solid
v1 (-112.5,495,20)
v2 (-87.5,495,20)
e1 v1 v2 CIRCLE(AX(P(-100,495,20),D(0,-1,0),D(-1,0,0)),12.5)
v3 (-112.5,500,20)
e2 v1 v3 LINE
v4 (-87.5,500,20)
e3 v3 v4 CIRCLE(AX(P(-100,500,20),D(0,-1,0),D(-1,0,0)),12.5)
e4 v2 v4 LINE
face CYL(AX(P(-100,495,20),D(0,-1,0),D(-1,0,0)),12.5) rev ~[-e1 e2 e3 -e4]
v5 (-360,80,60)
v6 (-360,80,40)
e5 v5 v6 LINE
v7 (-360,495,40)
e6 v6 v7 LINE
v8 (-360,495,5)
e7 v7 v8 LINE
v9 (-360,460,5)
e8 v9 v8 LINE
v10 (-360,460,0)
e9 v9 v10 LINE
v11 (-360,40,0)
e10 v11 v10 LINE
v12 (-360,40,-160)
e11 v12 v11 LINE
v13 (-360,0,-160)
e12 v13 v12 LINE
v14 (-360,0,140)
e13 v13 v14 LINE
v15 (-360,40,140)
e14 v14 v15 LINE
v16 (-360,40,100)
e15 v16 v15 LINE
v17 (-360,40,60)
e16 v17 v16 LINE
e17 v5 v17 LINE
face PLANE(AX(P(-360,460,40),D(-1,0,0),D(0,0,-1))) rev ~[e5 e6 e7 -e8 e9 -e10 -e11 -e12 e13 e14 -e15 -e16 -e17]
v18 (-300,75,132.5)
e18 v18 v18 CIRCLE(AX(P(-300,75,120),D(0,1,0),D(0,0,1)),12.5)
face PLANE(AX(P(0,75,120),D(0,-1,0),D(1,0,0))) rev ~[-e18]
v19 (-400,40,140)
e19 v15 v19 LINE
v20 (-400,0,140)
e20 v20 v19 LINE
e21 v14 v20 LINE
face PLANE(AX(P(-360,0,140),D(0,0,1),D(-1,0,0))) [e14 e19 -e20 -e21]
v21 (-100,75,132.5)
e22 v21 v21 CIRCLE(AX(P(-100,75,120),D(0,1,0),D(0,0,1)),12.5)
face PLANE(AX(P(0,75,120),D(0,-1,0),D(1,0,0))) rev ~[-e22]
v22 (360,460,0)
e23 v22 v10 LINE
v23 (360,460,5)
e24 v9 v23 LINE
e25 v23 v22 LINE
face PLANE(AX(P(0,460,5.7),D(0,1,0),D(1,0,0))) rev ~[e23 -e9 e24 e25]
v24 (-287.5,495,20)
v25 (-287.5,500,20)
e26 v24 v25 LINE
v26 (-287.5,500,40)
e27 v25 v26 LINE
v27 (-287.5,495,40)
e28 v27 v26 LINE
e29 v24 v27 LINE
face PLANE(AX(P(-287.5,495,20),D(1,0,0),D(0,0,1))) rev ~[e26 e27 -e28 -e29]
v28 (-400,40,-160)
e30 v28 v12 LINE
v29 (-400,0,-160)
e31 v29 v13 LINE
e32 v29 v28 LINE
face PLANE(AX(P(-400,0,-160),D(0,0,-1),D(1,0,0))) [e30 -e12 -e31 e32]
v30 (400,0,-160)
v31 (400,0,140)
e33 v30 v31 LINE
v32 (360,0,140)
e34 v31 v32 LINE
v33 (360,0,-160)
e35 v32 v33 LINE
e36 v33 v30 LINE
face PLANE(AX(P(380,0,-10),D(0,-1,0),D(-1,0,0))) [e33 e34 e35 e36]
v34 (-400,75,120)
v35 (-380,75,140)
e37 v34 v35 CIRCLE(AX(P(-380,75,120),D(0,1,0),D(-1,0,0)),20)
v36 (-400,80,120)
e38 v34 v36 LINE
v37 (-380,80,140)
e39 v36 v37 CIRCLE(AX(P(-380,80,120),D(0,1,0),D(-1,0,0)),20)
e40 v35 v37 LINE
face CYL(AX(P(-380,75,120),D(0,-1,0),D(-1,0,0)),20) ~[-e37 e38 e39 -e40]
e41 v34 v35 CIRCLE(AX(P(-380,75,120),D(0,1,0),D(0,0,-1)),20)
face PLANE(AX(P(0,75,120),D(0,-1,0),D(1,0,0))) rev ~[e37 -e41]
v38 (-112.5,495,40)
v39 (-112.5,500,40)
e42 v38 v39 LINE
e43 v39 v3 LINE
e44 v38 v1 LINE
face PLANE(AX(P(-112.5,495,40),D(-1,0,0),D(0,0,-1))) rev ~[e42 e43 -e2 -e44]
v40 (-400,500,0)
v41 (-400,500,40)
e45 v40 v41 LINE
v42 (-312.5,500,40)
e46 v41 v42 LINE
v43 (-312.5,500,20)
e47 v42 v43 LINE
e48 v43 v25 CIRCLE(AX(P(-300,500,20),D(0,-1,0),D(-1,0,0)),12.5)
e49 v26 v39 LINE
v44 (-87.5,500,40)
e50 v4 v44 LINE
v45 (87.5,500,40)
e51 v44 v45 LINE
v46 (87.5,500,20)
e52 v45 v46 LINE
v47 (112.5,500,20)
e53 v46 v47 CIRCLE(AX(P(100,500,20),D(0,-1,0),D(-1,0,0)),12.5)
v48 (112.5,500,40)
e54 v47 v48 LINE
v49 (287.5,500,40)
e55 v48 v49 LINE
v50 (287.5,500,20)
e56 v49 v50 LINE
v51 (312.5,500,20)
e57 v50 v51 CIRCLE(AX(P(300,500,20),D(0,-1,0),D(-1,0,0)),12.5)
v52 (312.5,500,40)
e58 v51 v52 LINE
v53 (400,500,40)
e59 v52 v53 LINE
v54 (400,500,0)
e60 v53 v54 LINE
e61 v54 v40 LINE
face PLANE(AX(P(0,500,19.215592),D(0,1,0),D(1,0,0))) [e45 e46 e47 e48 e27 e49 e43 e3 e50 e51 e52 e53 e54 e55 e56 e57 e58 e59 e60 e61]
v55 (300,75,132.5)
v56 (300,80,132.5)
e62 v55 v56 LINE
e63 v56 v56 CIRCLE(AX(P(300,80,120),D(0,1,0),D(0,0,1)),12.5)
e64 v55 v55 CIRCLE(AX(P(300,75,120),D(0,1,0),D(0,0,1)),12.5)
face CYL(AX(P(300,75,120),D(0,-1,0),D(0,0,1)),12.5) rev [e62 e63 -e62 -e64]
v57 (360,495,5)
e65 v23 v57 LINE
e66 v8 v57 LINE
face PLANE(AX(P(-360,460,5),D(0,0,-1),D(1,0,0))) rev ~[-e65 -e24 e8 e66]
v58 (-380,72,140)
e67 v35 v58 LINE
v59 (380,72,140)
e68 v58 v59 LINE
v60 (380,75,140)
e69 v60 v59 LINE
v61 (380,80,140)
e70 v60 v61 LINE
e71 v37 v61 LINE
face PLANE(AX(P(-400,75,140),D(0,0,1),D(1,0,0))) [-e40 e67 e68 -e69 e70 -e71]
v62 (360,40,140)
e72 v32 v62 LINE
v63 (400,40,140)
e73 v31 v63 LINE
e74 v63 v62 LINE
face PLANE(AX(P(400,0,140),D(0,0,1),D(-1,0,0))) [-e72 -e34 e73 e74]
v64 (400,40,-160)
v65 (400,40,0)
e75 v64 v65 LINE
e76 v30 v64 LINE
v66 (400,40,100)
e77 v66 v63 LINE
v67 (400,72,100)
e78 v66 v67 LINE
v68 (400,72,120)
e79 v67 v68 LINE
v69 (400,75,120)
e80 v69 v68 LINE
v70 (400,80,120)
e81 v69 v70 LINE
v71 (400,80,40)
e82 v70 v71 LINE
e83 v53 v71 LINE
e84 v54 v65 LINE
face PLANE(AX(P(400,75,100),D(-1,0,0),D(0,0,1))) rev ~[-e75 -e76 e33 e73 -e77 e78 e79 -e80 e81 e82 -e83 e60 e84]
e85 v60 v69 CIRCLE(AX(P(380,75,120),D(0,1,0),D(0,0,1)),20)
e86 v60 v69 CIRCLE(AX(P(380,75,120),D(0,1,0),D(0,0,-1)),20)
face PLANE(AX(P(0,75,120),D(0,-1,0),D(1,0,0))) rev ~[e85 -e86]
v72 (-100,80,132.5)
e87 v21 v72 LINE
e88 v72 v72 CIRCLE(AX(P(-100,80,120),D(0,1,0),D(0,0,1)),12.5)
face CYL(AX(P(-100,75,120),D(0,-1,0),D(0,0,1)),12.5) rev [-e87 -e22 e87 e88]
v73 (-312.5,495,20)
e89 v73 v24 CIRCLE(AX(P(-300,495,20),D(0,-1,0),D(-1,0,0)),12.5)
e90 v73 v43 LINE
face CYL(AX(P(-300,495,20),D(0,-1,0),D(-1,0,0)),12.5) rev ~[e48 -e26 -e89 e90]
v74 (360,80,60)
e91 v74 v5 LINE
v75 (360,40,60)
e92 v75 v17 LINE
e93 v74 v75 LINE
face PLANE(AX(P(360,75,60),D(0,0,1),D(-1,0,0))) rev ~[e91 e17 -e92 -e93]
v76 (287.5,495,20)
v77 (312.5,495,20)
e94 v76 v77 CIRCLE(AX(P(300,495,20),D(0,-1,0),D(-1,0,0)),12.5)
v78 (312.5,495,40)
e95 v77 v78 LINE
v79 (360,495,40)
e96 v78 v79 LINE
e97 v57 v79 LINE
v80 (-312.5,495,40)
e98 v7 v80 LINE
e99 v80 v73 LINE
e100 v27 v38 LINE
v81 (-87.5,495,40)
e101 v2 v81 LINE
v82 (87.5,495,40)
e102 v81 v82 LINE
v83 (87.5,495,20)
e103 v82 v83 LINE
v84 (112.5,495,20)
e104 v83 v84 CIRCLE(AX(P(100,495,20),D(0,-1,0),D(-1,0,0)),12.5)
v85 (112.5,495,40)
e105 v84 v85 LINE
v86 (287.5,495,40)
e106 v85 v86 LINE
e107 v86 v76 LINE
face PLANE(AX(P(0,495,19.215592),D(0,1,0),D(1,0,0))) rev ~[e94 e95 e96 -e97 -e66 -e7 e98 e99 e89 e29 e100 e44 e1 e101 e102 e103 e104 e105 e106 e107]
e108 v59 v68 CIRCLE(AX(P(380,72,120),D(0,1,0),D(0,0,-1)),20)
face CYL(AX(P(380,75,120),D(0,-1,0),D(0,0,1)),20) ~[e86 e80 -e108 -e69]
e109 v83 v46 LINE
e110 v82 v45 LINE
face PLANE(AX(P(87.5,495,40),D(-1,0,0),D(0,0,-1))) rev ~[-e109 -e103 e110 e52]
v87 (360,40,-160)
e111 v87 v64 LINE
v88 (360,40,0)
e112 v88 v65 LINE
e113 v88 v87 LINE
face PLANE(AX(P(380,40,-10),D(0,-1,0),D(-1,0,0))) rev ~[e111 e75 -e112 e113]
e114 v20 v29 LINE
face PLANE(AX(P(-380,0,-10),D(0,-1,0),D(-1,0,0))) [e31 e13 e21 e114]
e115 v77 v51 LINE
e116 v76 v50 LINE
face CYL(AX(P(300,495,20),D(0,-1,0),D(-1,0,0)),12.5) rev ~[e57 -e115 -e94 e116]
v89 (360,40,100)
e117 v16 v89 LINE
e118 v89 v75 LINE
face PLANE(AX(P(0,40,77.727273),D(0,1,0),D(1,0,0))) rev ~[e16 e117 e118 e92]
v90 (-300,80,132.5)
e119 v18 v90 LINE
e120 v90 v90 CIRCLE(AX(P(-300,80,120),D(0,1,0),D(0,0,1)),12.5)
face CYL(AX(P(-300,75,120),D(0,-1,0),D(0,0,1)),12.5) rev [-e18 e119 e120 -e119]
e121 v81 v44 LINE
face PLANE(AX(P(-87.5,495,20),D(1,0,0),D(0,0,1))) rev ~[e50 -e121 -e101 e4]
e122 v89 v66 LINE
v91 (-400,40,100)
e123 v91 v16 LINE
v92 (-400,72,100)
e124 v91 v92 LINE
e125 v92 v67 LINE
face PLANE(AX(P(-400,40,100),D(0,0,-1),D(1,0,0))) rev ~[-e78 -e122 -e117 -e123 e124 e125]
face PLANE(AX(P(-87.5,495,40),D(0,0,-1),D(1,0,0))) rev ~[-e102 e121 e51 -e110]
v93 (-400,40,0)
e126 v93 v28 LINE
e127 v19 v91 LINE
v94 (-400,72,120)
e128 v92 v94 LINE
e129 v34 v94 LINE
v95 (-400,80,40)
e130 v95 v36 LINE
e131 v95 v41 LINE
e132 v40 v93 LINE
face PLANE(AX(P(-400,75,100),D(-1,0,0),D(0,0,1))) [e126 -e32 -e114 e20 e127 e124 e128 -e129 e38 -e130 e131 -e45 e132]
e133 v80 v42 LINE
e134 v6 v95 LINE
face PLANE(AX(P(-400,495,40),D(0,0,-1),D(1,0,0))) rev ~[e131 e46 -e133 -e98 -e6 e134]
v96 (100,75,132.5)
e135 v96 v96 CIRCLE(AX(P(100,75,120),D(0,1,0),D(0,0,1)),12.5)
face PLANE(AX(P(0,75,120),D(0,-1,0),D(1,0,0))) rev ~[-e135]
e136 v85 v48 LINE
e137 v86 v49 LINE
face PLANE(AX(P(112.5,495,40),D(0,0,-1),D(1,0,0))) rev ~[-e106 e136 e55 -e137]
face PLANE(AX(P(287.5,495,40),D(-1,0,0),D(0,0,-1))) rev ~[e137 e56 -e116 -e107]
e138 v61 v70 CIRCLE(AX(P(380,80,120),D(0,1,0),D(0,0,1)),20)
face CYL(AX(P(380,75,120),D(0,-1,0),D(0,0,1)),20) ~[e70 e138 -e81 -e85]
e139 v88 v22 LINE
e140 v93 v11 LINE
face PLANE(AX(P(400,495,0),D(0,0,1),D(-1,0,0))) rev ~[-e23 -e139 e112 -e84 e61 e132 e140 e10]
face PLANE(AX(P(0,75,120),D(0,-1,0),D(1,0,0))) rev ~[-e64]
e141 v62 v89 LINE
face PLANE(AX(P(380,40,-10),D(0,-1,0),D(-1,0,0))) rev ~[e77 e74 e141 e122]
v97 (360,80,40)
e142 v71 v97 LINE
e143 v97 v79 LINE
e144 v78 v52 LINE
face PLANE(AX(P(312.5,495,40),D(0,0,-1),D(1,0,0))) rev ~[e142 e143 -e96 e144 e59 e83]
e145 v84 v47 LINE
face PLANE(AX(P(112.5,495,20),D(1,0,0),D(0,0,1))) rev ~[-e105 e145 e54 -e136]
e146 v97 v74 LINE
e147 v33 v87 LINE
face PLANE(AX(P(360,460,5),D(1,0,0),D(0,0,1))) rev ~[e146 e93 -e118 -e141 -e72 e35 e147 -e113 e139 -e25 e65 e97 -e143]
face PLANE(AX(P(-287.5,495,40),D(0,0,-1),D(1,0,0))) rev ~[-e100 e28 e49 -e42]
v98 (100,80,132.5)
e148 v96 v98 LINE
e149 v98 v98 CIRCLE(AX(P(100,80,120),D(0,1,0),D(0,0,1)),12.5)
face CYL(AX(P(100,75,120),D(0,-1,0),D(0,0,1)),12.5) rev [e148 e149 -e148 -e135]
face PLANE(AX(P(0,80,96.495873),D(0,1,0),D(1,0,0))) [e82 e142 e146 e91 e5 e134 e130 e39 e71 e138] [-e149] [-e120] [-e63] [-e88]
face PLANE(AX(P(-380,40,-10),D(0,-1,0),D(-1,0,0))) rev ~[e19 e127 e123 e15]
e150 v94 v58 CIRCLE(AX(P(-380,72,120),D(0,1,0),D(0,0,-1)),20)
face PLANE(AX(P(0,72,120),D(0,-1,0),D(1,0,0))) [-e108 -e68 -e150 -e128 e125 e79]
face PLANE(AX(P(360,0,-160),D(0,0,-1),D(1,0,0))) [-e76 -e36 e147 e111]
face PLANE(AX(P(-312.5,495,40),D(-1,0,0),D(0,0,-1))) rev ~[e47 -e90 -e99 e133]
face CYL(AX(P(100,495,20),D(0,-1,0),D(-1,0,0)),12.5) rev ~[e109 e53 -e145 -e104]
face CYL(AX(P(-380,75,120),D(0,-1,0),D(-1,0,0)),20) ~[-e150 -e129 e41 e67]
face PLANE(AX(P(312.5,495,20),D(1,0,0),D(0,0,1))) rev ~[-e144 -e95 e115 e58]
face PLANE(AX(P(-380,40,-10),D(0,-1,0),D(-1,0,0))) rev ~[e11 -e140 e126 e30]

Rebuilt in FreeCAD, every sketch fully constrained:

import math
import FreeCAD as App
import Part
import Sketcher

V = App.Vector
Q = App.Units.Quantity


def edges_at(feature, points):
    """Names of the edges that pass closest to the given points."""
    edges = feature.Shape.Edges
    near = lambda p: min(range(len(edges)), key=lambda i: edges[i].distToShape(Part.Vertex(*p))[0])
    return sorted({f"Edge{near(p) + 1}" for p in points})

doc = App.newDocument("Part")
params = doc.addObject("Spreadsheet::Sheet", "Params")
for row, (alias, value) in enumerate([
    ("sketch1_width", "40 mm"),
    ("sketch1_height", "300 mm"),
    ("pad1_length", "40 mm"),
    ("sketch2_width", "40 mm"),
    ("sketch2_height", "300 mm"),
    ("pad2_length", "40 mm"),
    ("sketch3_width", "800 mm"),
    ("sketch3_width2", "40 mm"),
    ("sketch3_height", "60 mm"),
    ("sketch3_height2", "20 mm"),
    ("pad3_length", "35 mm"),
    ("sketch4_diameter", "25 mm"),
    ("sketch4_radius", "20 mm"),
    ("sketch4_width", "760 mm"),
    ("sketch4_width2", "40 mm"),
    ("sketch4_height", "80 mm"),
    ("pad4_length", "5 mm"),
    ("sketch5_width", "40 mm"),
    ("pad5_length", "420 mm"),
    ("sketch6_width", "40 mm"),
    ("sketch6_width2", "720 mm"),
    ("sketch6_height", "35 mm"),
    ("pad6_length", "35 mm"),
    ("sketch7_radius", "12.5 mm"),
    ("sketch7_width", "175 mm"),
    ("sketch7_width2", "800 mm"),
    ("sketch7_height", "40 mm"),
    ("sketch7_height2", "20 mm"),
    ("pad7_length", "5 mm"),
    ("sketch8_width", "800 mm"),
    ("sketch8_height", "40 mm"),
    ("pad8_length", "3 mm"),
    ("fillet_radius", "20 mm"),
], start=1):
    params.set(f"A{row}", alias)
    params.set(f"B{row}", "=" + value)
    params.setAlias(f"B{row}", alias)

body = doc.addObject("PartDesign::Body", "Body")

sketch1 = body.newObject("Sketcher::SketchObject", "Sketch")
sketch1.AttachmentSupport = (doc.getObject("XZ_Plane"), [""])
sketch1.MapMode = "FlatFace"
sketch1.addGeometry(Part.LineSegment(V(-360, -160, 0), V(-400, -160, 0)), False)
sketch1.addGeometry(Part.LineSegment(V(-400, -160, 0), V(-400, 140, 0)), False)
sketch1.addGeometry(Part.LineSegment(V(-400, 140, 0), V(-360, 140, 0)), False)
sketch1.addGeometry(Part.LineSegment(V(-360, 140, 0), V(-360, -160, 0)), False)
sketch1.addConstraint(Sketcher.Constraint("Coincident", 0, 2, 1, 1))
sketch1.addConstraint(Sketcher.Constraint("Coincident", 1, 2, 2, 1))
sketch1.addConstraint(Sketcher.Constraint("Coincident", 2, 2, 3, 1))
sketch1.addConstraint(Sketcher.Constraint("Coincident", 3, 2, 0, 1))
sketch1.addConstraint(Sketcher.Constraint("Horizontal", 0))
sketch1.addConstraint(Sketcher.Constraint("Vertical", 1))
sketch1.addConstraint(Sketcher.Constraint("Horizontal", 2))
sketch1.addConstraint(Sketcher.Constraint("Vertical", 3))
sketch1.addConstraint(Sketcher.Constraint("DistanceX", 0, 2, 0, 1, Q("40 mm")))
sketch1.addConstraint(Sketcher.Constraint("DistanceY", 1, 1, 1, 2, Q("300 mm")))
sketch1.addConstraint(Sketcher.Constraint("DistanceX", 0, 2, -1, 1, Q("400 mm")))
sketch1.addConstraint(Sketcher.Constraint("DistanceY", 0, 2, -1, 1, Q("160 mm")))
sketch1.setExpression("Constraints[8]", "Params.sketch1_width")
sketch1.setExpression("Constraints[9]", "Params.sketch1_height")
pad1 = body.newObject("PartDesign::Pad", "Pad")
pad1.Profile = sketch1
pad1.setExpression("Length", "Params.pad1_length")
pad1.Reversed = True
body2 = doc.addObject("PartDesign::Body", "Body001")

sketch2 = body2.newObject("Sketcher::SketchObject", "Sketch001")
sketch2.AttachmentSupport = (doc.getObject("XZ_Plane001"), [""])
sketch2.MapMode = "FlatFace"
sketch2.addGeometry(Part.LineSegment(V(400, -160, 0), V(360, -160, 0)), False)
sketch2.addGeometry(Part.LineSegment(V(360, -160, 0), V(360, 140, 0)), False)
sketch2.addGeometry(Part.LineSegment(V(360, 140, 0), V(400, 140, 0)), False)
sketch2.addGeometry(Part.LineSegment(V(400, 140, 0), V(400, -160, 0)), False)
sketch2.addConstraint(Sketcher.Constraint("Coincident", 0, 2, 1, 1))
sketch2.addConstraint(Sketcher.Constraint("Coincident", 1, 2, 2, 1))
sketch2.addConstraint(Sketcher.Constraint("Coincident", 2, 2, 3, 1))
sketch2.addConstraint(Sketcher.Constraint("Coincident", 3, 2, 0, 1))
sketch2.addConstraint(Sketcher.Constraint("Horizontal", 0))
sketch2.addConstraint(Sketcher.Constraint("Vertical", 1))
sketch2.addConstraint(Sketcher.Constraint("Horizontal", 2))
sketch2.addConstraint(Sketcher.Constraint("Vertical", 3))
sketch2.addConstraint(Sketcher.Constraint("DistanceX", 0, 2, 0, 1, Q("40 mm")))
sketch2.addConstraint(Sketcher.Constraint("DistanceY", 1, 1, 1, 2, Q("300 mm")))
sketch2.addConstraint(Sketcher.Constraint("DistanceX", -1, 1, 0, 2, Q("360 mm")))
sketch2.addConstraint(Sketcher.Constraint("DistanceY", 0, 2, -1, 1, Q("160 mm")))
sketch2.setExpression("Constraints[8]", "Params.sketch2_width")
sketch2.setExpression("Constraints[9]", "Params.sketch2_height")
pad2 = body2.newObject("PartDesign::Pad", "Pad001")
pad2.Profile = sketch2
pad2.setExpression("Length", "Params.pad2_length")
pad2.Reversed = True
body.AllowCompound = True
doc.recompute()

boolean = body.newObject("PartDesign::Boolean", "Boolean")
boolean.Type = "Fuse"
boolean.addObjects([body2])

sketch3 = body.newObject("Sketcher::SketchObject", "Sketch002")
sketch3.AttachmentSupport = (doc.getObject("XZ_Plane"), [""])
sketch3.MapMode = "FlatFace"
sketch3.AttachmentOffset = App.Placement(V(0, 0, -40), App.Rotation())
sketch3.addGeometry(Part.LineSegment(V(-400, 40, 0), V(-400, 100, 0)), False)
sketch3.addGeometry(Part.LineSegment(V(-400, 100, 0), V(400, 100, 0)), False)
sketch3.addGeometry(Part.LineSegment(V(400, 100, 0), V(400, 40, 0)), False)
sketch3.addGeometry(Part.LineSegment(V(400, 40, 0), V(360, 40, 0)), False)
sketch3.addGeometry(Part.LineSegment(V(360, 40, 0), V(360, 60, 0)), False)
sketch3.addGeometry(Part.LineSegment(V(360, 60, 0), V(-360, 60, 0)), False)
sketch3.addGeometry(Part.LineSegment(V(-360, 60, 0), V(-360, 40, 0)), False)
sketch3.addGeometry(Part.LineSegment(V(-360, 40, 0), V(-400, 40, 0)), False)
sketch3.addConstraint(Sketcher.Constraint("Coincident", 0, 2, 1, 1))
sketch3.addConstraint(Sketcher.Constraint("Coincident", 1, 2, 2, 1))
sketch3.addConstraint(Sketcher.Constraint("Coincident", 2, 2, 3, 1))
sketch3.addConstraint(Sketcher.Constraint("Coincident", 3, 2, 4, 1))
sketch3.addConstraint(Sketcher.Constraint("Coincident", 4, 2, 5, 1))
sketch3.addConstraint(Sketcher.Constraint("Coincident", 5, 2, 6, 1))
sketch3.addConstraint(Sketcher.Constraint("Coincident", 6, 2, 7, 1))
sketch3.addConstraint(Sketcher.Constraint("Coincident", 7, 2, 0, 1))
sketch3.addConstraint(Sketcher.Constraint("Vertical", 0))
sketch3.addConstraint(Sketcher.Constraint("Horizontal", 1))
sketch3.addConstraint(Sketcher.Constraint("Vertical", 2))
sketch3.addConstraint(Sketcher.Constraint("Horizontal", 3))
sketch3.addConstraint(Sketcher.Constraint("Vertical", 4))
sketch3.addConstraint(Sketcher.Constraint("Horizontal", 5))
sketch3.addConstraint(Sketcher.Constraint("Vertical", 6))
sketch3.addConstraint(Sketcher.Constraint("Horizontal", 7))
sketch3.addConstraint(Sketcher.Constraint("Symmetric", 3, 2, 6, 2, -2))
sketch3.addConstraint(Sketcher.Constraint("Equal", 3, 7))
sketch3.addConstraint(Sketcher.Constraint("DistanceX", 1, 1, 1, 2, Q("800 mm")))
sketch3.addConstraint(Sketcher.Constraint("DistanceX", 3, 2, 3, 1, Q("40 mm")))
sketch3.addConstraint(Sketcher.Constraint("DistanceY", 0, 1, 0, 2, Q("60 mm")))
sketch3.addConstraint(Sketcher.Constraint("DistanceY", 4, 1, 4, 2, Q("20 mm")))
sketch3.addConstraint(Sketcher.Constraint("DistanceY", -1, 1, 0, 2, Q("100 mm")))
sketch3.setExpression("Constraints[18]", "Params.sketch3_width")
sketch3.setExpression("Constraints[19]", "Params.sketch3_width2")
sketch3.setExpression("Constraints[20]", "Params.sketch3_height")
sketch3.setExpression("Constraints[21]", "Params.sketch3_height2")
pad3 = body.newObject("PartDesign::Pad", "Pad002")
pad3.Profile = sketch3
pad3.setExpression("Length", "Params.pad3_length")
pad3.Reversed = True

sketch4 = body.newObject("Sketcher::SketchObject", "Sketch003")
sketch4.AttachmentSupport = (doc.getObject("XZ_Plane"), [""])
sketch4.MapMode = "FlatFace"
sketch4.AttachmentOffset = App.Placement(V(0, 0, -75), App.Rotation())
sketch4.addGeometry(Part.LineSegment(V(-400, 40, 0), V(-400, 120, 0)), False)
sketch4.addGeometry(Part.ArcOfCircle(Part.Circle(V(-380, 120, 0), V(0, 0, 1), 20), math.radians(90), math.radians(180)), False)
sketch4.addGeometry(Part.LineSegment(V(-380, 140, 0), V(380, 140, 0)), False)
sketch4.addGeometry(Part.ArcOfCircle(Part.Circle(V(380, 120, 0), V(0, 0, 1), 20), math.radians(0), math.radians(90)), False)
sketch4.addGeometry(Part.LineSegment(V(400, 120, 0), V(400, 40, 0)), False)
sketch4.addGeometry(Part.LineSegment(V(400, 40, 0), V(360, 40, 0)), False)
sketch4.addGeometry(Part.LineSegment(V(360, 40, 0), V(360, 60, 0)), False)
sketch4.addGeometry(Part.LineSegment(V(360, 60, 0), V(-360, 60, 0)), False)
sketch4.addGeometry(Part.LineSegment(V(-360, 60, 0), V(-360, 40, 0)), False)
sketch4.addGeometry(Part.LineSegment(V(-360, 40, 0), V(-400, 40, 0)), False)
sketch4.addGeometry(Part.Circle(V(-300, 120, 0), V(0, 0, 1), 12.5), False)
sketch4.addGeometry(Part.Circle(V(-100, 120, 0), V(0, 0, 1), 12.5), False)
sketch4.addGeometry(Part.Circle(V(100, 120, 0), V(0, 0, 1), 12.5), False)
sketch4.addGeometry(Part.Circle(V(300, 120, 0), V(0, 0, 1), 12.5), False)
sketch4.addConstraint(Sketcher.Constraint("Tangent", 0, 2, 1, 2))
sketch4.addConstraint(Sketcher.Constraint("Tangent", 1, 1, 2, 1))
sketch4.addConstraint(Sketcher.Constraint("Tangent", 2, 2, 3, 2))
sketch4.addConstraint(Sketcher.Constraint("Tangent", 3, 1, 4, 1))
sketch4.addConstraint(Sketcher.Constraint("Coincident", 4, 2, 5, 1))
sketch4.addConstraint(Sketcher.Constraint("Coincident", 5, 2, 6, 1))
sketch4.addConstraint(Sketcher.Constraint("Coincident", 6, 2, 7, 1))
sketch4.addConstraint(Sketcher.Constraint("Coincident", 7, 2, 8, 1))
sketch4.addConstraint(Sketcher.Constraint("Coincident", 8, 2, 9, 1))
sketch4.addConstraint(Sketcher.Constraint("Coincident", 9, 2, 0, 1))
sketch4.addConstraint(Sketcher.Constraint("Vertical", 0))
sketch4.addConstraint(Sketcher.Constraint("Horizontal", 2))
sketch4.addConstraint(Sketcher.Constraint("Vertical", 4))
sketch4.addConstraint(Sketcher.Constraint("Horizontal", 5))
sketch4.addConstraint(Sketcher.Constraint("Vertical", 6))
sketch4.addConstraint(Sketcher.Constraint("Horizontal", 7))
sketch4.addConstraint(Sketcher.Constraint("Vertical", 8))
sketch4.addConstraint(Sketcher.Constraint("Horizontal", 9))
sketch4.addConstraint(Sketcher.Constraint("Equal", 1, 3))
sketch4.addConstraint(Sketcher.Constraint("Equal", 10, 11))
sketch4.addConstraint(Sketcher.Constraint("Equal", 11, 12))
sketch4.addConstraint(Sketcher.Constraint("Equal", 12, 13))
sketch4.addConstraint(Sketcher.Constraint("Symmetric", 11, 3, 12, 3, -2))
sketch4.addConstraint(Sketcher.Constraint("Symmetric", 10, 3, 13, 3, -2))
sketch4.addConstraint(Sketcher.Constraint("Symmetric", 5, 2, 8, 2, -2))
sketch4.addConstraint(Sketcher.Constraint("Horizontal", 3, 3, 10, 3))
sketch4.addConstraint(Sketcher.Constraint("Horizontal", 10, 3, 11, 3))
sketch4.addConstraint(Sketcher.Constraint("Equal", 5, 9))
sketch4.addConstraint(Sketcher.Constraint("Diameter", 10, Q("25 mm")))
sketch4.addConstraint(Sketcher.Constraint("Radius", 1, Q("20 mm")))
sketch4.addConstraint(Sketcher.Constraint("DistanceX", 2, 1, 2, 2, Q("760 mm")))
sketch4.addConstraint(Sketcher.Constraint("DistanceX", 5, 2, 5, 1, Q("40 mm")))
sketch4.addConstraint(Sketcher.Constraint("DistanceY", 0, 1, 0, 2, Q("80 mm")))
sketch4.addConstraint(Sketcher.Constraint("DistanceY", 6, 1, 6, 2, Q("20 mm")))
sketch4.addConstraint(Sketcher.Constraint("DistanceY", -1, 1, 1, 3, Q("120 mm")))
sketch4.addConstraint(Sketcher.Constraint("DistanceX", 10, 3, -1, 1, Q("300 mm")))
sketch4.addConstraint(Sketcher.Constraint("DistanceX", 11, 3, -1, 1, Q("100 mm")))
sketch4.setExpression("Constraints[28]", "Params.sketch4_diameter")
sketch4.setExpression("Constraints[29]", "Params.sketch4_radius")
sketch4.setExpression("Constraints[30]", "Params.sketch4_width")
sketch4.setExpression("Constraints[31]", "Params.sketch4_width2")
sketch4.setExpression("Constraints[32]", "Params.sketch4_height")
pad4 = body.newObject("PartDesign::Pad", "Pad003")
pad4.Profile = sketch4
pad4.setExpression("Length", "Params.pad4_length")
pad4.Reversed = True

sketch5 = body.newObject("Sketcher::SketchObject", "Sketch004")
sketch5.AttachmentSupport = (doc.getObject("XZ_Plane"), [""])
sketch5.MapMode = "FlatFace"
sketch5.AttachmentOffset = App.Placement(V(0, 0, -40), App.Rotation())
sketch5.addGeometry(Part.LineSegment(V(-400, 0, 0), V(-400, 40, 0)), False)
sketch5.addGeometry(Part.LineSegment(V(-400, 40, 0), V(-360, 40, 0)), False)
sketch5.addGeometry(Part.LineSegment(V(-360, 40, 0), V(-360, 0, 0)), False)
sketch5.addGeometry(Part.LineSegment(V(-360, 0, 0), V(-400, 0, 0)), False)
sketch5.addGeometry(Part.LineSegment(V(360, 0, 0), V(360, 40, 0)), False)
sketch5.addGeometry(Part.LineSegment(V(360, 40, 0), V(400, 40, 0)), False)
sketch5.addGeometry(Part.LineSegment(V(400, 40, 0), V(400, 0, 0)), False)
sketch5.addGeometry(Part.LineSegment(V(400, 0, 0), V(360, 0, 0)), False)
sketch5.addConstraint(Sketcher.Constraint("Coincident", 0, 2, 1, 1))
sketch5.addConstraint(Sketcher.Constraint("Coincident", 1, 2, 2, 1))
sketch5.addConstraint(Sketcher.Constraint("Coincident", 2, 2, 3, 1))
sketch5.addConstraint(Sketcher.Constraint("Coincident", 3, 2, 0, 1))
sketch5.addConstraint(Sketcher.Constraint("Coincident", 4, 2, 5, 1))
sketch5.addConstraint(Sketcher.Constraint("Coincident", 5, 2, 6, 1))
sketch5.addConstraint(Sketcher.Constraint("Coincident", 6, 2, 7, 1))
sketch5.addConstraint(Sketcher.Constraint("Coincident", 7, 2, 4, 1))
sketch5.addConstraint(Sketcher.Constraint("Vertical", 0))
sketch5.addConstraint(Sketcher.Constraint("Horizontal", 1))
sketch5.addConstraint(Sketcher.Constraint("Vertical", 2))
sketch5.addConstraint(Sketcher.Constraint("Horizontal", 3))
sketch5.addConstraint(Sketcher.Constraint("Vertical", 4))
sketch5.addConstraint(Sketcher.Constraint("Horizontal", 5))
sketch5.addConstraint(Sketcher.Constraint("Vertical", 6))
sketch5.addConstraint(Sketcher.Constraint("Horizontal", 7))
sketch5.addConstraint(Sketcher.Constraint("Symmetric", 3, 2, 6, 2, -1, 1))
sketch5.addConstraint(Sketcher.Constraint("Symmetric", 1, 2, 4, 2, -2))
sketch5.addConstraint(Sketcher.Constraint("PointOnObject", 2, 2, -1))
sketch5.addConstraint(Sketcher.Constraint("Equal", 7, 0))
sketch5.addConstraint(Sketcher.Constraint("DistanceX", 1, 1, 1, 2, Q("40 mm")))
sketch5.addConstraint(Sketcher.Constraint("DistanceX", 0, 2, -1, 1, Q("400 mm")))
sketch5.setExpression("Constraints[20]", "Params.sketch5_width")
pad5 = body.newObject("PartDesign::Pad", "Pad004")
pad5.Profile = sketch5
pad5.setExpression("Length", "Params.pad5_length")
pad5.Reversed = True

sketch6 = body.newObject("Sketcher::SketchObject", "Sketch005")
sketch6.AttachmentSupport = (doc.getObject("XZ_Plane"), [""])
sketch6.MapMode = "FlatFace"
sketch6.AttachmentOffset = App.Placement(V(0, 0, -460), App.Rotation())
sketch6.addGeometry(Part.LineSegment(V(-400, 0, 0), V(-400, 40, 0)), False)
sketch6.addGeometry(Part.LineSegment(V(-400, 40, 0), V(-360, 40, 0)), False)
sketch6.addGeometry(Part.LineSegment(V(-360, 40, 0), V(-360, 5, 0)), False)
sketch6.addGeometry(Part.LineSegment(V(-360, 5, 0), V(360, 5, 0)), False)
sketch6.addGeometry(Part.LineSegment(V(360, 5, 0), V(360, 40, 0)), False)
sketch6.addGeometry(Part.LineSegment(V(360, 40, 0), V(400, 40, 0)), False)
sketch6.addGeometry(Part.LineSegment(V(400, 40, 0), V(400, 0, 0)), False)
sketch6.addGeometry(Part.LineSegment(V(400, 0, 0), V(-400, 0, 0)), False)
sketch6.addConstraint(Sketcher.Constraint("Coincident", 0, 2, 1, 1))
sketch6.addConstraint(Sketcher.Constraint("Coincident", 1, 2, 2, 1))
sketch6.addConstraint(Sketcher.Constraint("Coincident", 2, 2, 3, 1))
sketch6.addConstraint(Sketcher.Constraint("Coincident", 3, 2, 4, 1))
sketch6.addConstraint(Sketcher.Constraint("Coincident", 4, 2, 5, 1))
sketch6.addConstraint(Sketcher.Constraint("Coincident", 5, 2, 6, 1))
sketch6.addConstraint(Sketcher.Constraint("Coincident", 6, 2, 7, 1))
sketch6.addConstraint(Sketcher.Constraint("Coincident", 7, 2, 0, 1))
sketch6.addConstraint(Sketcher.Constraint("Vertical", 0))
sketch6.addConstraint(Sketcher.Constraint("Horizontal", 1))
sketch6.addConstraint(Sketcher.Constraint("Vertical", 2))
sketch6.addConstraint(Sketcher.Constraint("Horizontal", 3))
sketch6.addConstraint(Sketcher.Constraint("Vertical", 4))
sketch6.addConstraint(Sketcher.Constraint("Horizontal", 5))
sketch6.addConstraint(Sketcher.Constraint("Vertical", 6))
sketch6.addConstraint(Sketcher.Constraint("Horizontal", 7))
sketch6.addConstraint(Sketcher.Constraint("Symmetric", 6, 2, 7, 2, -1, 1))
sketch6.addConstraint(Sketcher.Constraint("Symmetric", 1, 2, 4, 2, -2))
sketch6.addConstraint(Sketcher.Constraint("Equal", 5, 0))
sketch6.addConstraint(Sketcher.Constraint("DistanceX", 1, 1, 1, 2, Q("40 mm")))
sketch6.addConstraint(Sketcher.Constraint("DistanceX", 3, 1, 3, 2, Q("720 mm")))
sketch6.addConstraint(Sketcher.Constraint("DistanceY", 2, 2, 2, 1, Q("35 mm")))
sketch6.setExpression("Constraints[19]", "Params.sketch6_width")
sketch6.setExpression("Constraints[20]", "Params.sketch6_width2")
sketch6.setExpression("Constraints[21]", "Params.sketch6_height")
pad6 = body.newObject("PartDesign::Pad", "Pad005")
pad6.Profile = sketch6
pad6.setExpression("Length", "Params.pad6_length")
pad6.Reversed = True

sketch7 = body.newObject("Sketcher::SketchObject", "Sketch006")
sketch7.AttachmentSupport = (doc.getObject("XZ_Plane"), [""])
sketch7.MapMode = "FlatFace"
sketch7.AttachmentOffset = App.Placement(V(0, 0, -495), App.Rotation())
sketch7.addGeometry(Part.LineSegment(V(-400, 0, 0), V(-400, 40, 0)), False)
sketch7.addGeometry(Part.LineSegment(V(-400, 40, 0), V(-312.5, 40, 0)), False)
sketch7.addGeometry(Part.LineSegment(V(-312.5, 40, 0), V(-312.5, 20, 0)), False)
sketch7.addGeometry(Part.ArcOfCircle(Part.Circle(V(-300, 20, 0), V(0, 0, 1), 12.5), math.radians(180), math.radians(360)), False)
sketch7.addGeometry(Part.LineSegment(V(-287.5, 20, 0), V(-287.5, 40, 0)), False)
sketch7.addGeometry(Part.LineSegment(V(-287.5, 40, 0), V(-112.5, 40, 0)), False)
sketch7.addGeometry(Part.LineSegment(V(-112.5, 40, 0), V(-112.5, 20, 0)), False)
sketch7.addGeometry(Part.ArcOfCircle(Part.Circle(V(-100, 20, 0), V(0, 0, 1), 12.5), math.radians(180), math.radians(360)), False)
sketch7.addGeometry(Part.LineSegment(V(-87.5, 20, 0), V(-87.5, 40, 0)), False)
sketch7.addGeometry(Part.LineSegment(V(-87.5, 40, 0), V(87.5, 40, 0)), False)
sketch7.addGeometry(Part.LineSegment(V(87.5, 40, 0), V(87.5, 20, 0)), False)
sketch7.addGeometry(Part.ArcOfCircle(Part.Circle(V(100, 20, 0), V(0, 0, 1), 12.5), math.radians(180), math.radians(360)), False)
sketch7.addGeometry(Part.LineSegment(V(112.5, 20, 0), V(112.5, 40, 0)), False)
sketch7.addGeometry(Part.LineSegment(V(112.5, 40, 0), V(287.5, 40, 0)), False)
sketch7.addGeometry(Part.LineSegment(V(287.5, 40, 0), V(287.5, 20, 0)), False)
sketch7.addGeometry(Part.ArcOfCircle(Part.Circle(V(300, 20, 0), V(0, 0, 1), 12.5), math.radians(180), math.radians(360)), False)
sketch7.addGeometry(Part.LineSegment(V(312.5, 20, 0), V(312.5, 40, 0)), False)
sketch7.addGeometry(Part.LineSegment(V(312.5, 40, 0), V(400, 40, 0)), False)
sketch7.addGeometry(Part.LineSegment(V(400, 40, 0), V(400, 0, 0)), False)
sketch7.addGeometry(Part.LineSegment(V(400, 0, 0), V(-400, 0, 0)), False)
sketch7.addConstraint(Sketcher.Constraint("Coincident", 0, 2, 1, 1))
sketch7.addConstraint(Sketcher.Constraint("Coincident", 1, 2, 2, 1))
sketch7.addConstraint(Sketcher.Constraint("Tangent", 2, 2, 3, 1))
sketch7.addConstraint(Sketcher.Constraint("Tangent", 3, 2, 4, 1))
sketch7.addConstraint(Sketcher.Constraint("Coincident", 4, 2, 5, 1))
sketch7.addConstraint(Sketcher.Constraint("Coincident", 5, 2, 6, 1))
sketch7.addConstraint(Sketcher.Constraint("Tangent", 6, 2, 7, 1))
sketch7.addConstraint(Sketcher.Constraint("Tangent", 7, 2, 8, 1))
sketch7.addConstraint(Sketcher.Constraint("Coincident", 8, 2, 9, 1))
sketch7.addConstraint(Sketcher.Constraint("Coincident", 9, 2, 10, 1))
sketch7.addConstraint(Sketcher.Constraint("Tangent", 10, 2, 11, 1))
sketch7.addConstraint(Sketcher.Constraint("Tangent", 11, 2, 12, 1))
sketch7.addConstraint(Sketcher.Constraint("Coincident", 12, 2, 13, 1))
sketch7.addConstraint(Sketcher.Constraint("Coincident", 13, 2, 14, 1))
sketch7.addConstraint(Sketcher.Constraint("Tangent", 14, 2, 15, 1))
sketch7.addConstraint(Sketcher.Constraint("Tangent", 15, 2, 16, 1))
sketch7.addConstraint(Sketcher.Constraint("Coincident", 16, 2, 17, 1))
sketch7.addConstraint(Sketcher.Constraint("Coincident", 17, 2, 18, 1))
sketch7.addConstraint(Sketcher.Constraint("Coincident", 18, 2, 19, 1))
sketch7.addConstraint(Sketcher.Constraint("Coincident", 19, 2, 0, 1))
sketch7.addConstraint(Sketcher.Constraint("Vertical", 0))
sketch7.addConstraint(Sketcher.Constraint("Horizontal", 1))
sketch7.addConstraint(Sketcher.Constraint("Vertical", 2))
sketch7.addConstraint(Sketcher.Constraint("Vertical", 4))
sketch7.addConstraint(Sketcher.Constraint("Horizontal", 5))
sketch7.addConstraint(Sketcher.Constraint("Vertical", 6))
sketch7.addConstraint(Sketcher.Constraint("Vertical", 8))
sketch7.addConstraint(Sketcher.Constraint("Horizontal", 9))
sketch7.addConstraint(Sketcher.Constraint("Vertical", 10))
sketch7.addConstraint(Sketcher.Constraint("Vertical", 12))
sketch7.addConstraint(Sketcher.Constraint("Horizontal", 13))
sketch7.addConstraint(Sketcher.Constraint("Vertical", 14))
sketch7.addConstraint(Sketcher.Constraint("Vertical", 16))
sketch7.addConstraint(Sketcher.Constraint("Horizontal", 17))
sketch7.addConstraint(Sketcher.Constraint("Vertical", 18))
sketch7.addConstraint(Sketcher.Constraint("Horizontal", 19))
sketch7.addConstraint(Sketcher.Constraint("Equal", 3, 7))
sketch7.addConstraint(Sketcher.Constraint("Equal", 7, 11))
sketch7.addConstraint(Sketcher.Constraint("Equal", 11, 15))
sketch7.addConstraint(Sketcher.Constraint("Symmetric", 18, 2, 19, 2, -1, 1))
sketch7.addConstraint(Sketcher.Constraint("Symmetric", 7, 3, 11, 3, -2))
sketch7.addConstraint(Sketcher.Constraint("Symmetric", 3, 3, 15, 3, -2))
sketch7.addConstraint(Sketcher.Constraint("Horizontal", 3, 3, 7, 3))
sketch7.addConstraint(Sketcher.Constraint("Horizontal", 1, 2, 4, 2))
sketch7.addConstraint(Sketcher.Constraint("Horizontal", 5, 2, 8, 2))
sketch7.addConstraint(Sketcher.Constraint("Horizontal", 9, 2, 12, 2))
sketch7.addConstraint(Sketcher.Constraint("Horizontal", 13, 2, 16, 2))
sketch7.addConstraint(Sketcher.Constraint("Equal", 5, 9))
sketch7.addConstraint(Sketcher.Constraint("Radius", 3, Q("12.5 mm")))
sketch7.addConstraint(Sketcher.Constraint("DistanceX", 5, 1, 5, 2, Q("175 mm")))
sketch7.addConstraint(Sketcher.Constraint("DistanceX", 19, 2, 19, 1, Q("800 mm")))
sketch7.addConstraint(Sketcher.Constraint("DistanceY", 0, 1, 0, 2, Q("40 mm")))
sketch7.addConstraint(Sketcher.Constraint("DistanceY", 2, 2, 2, 1, Q("20 mm")))
sketch7.setExpression("Constraints[48]", "Params.sketch7_radius")
sketch7.setExpression("Constraints[49]", "Params.sketch7_width")
sketch7.setExpression("Constraints[50]", "Params.sketch7_width2")
sketch7.setExpression("Constraints[51]", "Params.sketch7_height")
sketch7.setExpression("Constraints[52]", "Params.sketch7_height2")
pad7 = body.newObject("PartDesign::Pad", "Pad006")
pad7.Profile = sketch7
pad7.setExpression("Length", "Params.pad7_length")
pad7.Reversed = True

sketch8 = body.newObject("Sketcher::SketchObject", "Sketch007")
sketch8.AttachmentSupport = (doc.getObject("XZ_Plane"), [""])
sketch8.MapMode = "FlatFace"
sketch8.AttachmentOffset = App.Placement(V(0, 0, -75), App.Rotation())
sketch8.addGeometry(Part.LineSegment(V(-400, 140, 0), V(-400, 100, 0)), False)
sketch8.addGeometry(Part.LineSegment(V(-400, 100, 0), V(400, 100, 0)), False)
sketch8.addGeometry(Part.LineSegment(V(400, 100, 0), V(400, 140, 0)), False)
sketch8.addGeometry(Part.LineSegment(V(400, 140, 0), V(-400, 140, 0)), False)
sketch8.addConstraint(Sketcher.Constraint("Coincident", 0, 2, 1, 1))
sketch8.addConstraint(Sketcher.Constraint("Coincident", 1, 2, 2, 1))
sketch8.addConstraint(Sketcher.Constraint("Coincident", 2, 2, 3, 1))
sketch8.addConstraint(Sketcher.Constraint("Coincident", 3, 2, 0, 1))
sketch8.addConstraint(Sketcher.Constraint("Vertical", 0))
sketch8.addConstraint(Sketcher.Constraint("Horizontal", 1))
sketch8.addConstraint(Sketcher.Constraint("Vertical", 2))
sketch8.addConstraint(Sketcher.Constraint("Horizontal", 3))
sketch8.addConstraint(Sketcher.Constraint("DistanceX", 1, 1, 1, 2, Q("800 mm")))
sketch8.addConstraint(Sketcher.Constraint("DistanceY", 0, 2, 0, 1, Q("40 mm")))
sketch8.addConstraint(Sketcher.Constraint("DistanceX", 0, 2, -1, 1, Q("400 mm")))
sketch8.addConstraint(Sketcher.Constraint("DistanceY", -1, 1, 0, 2, Q("100 mm")))
sketch8.setExpression("Constraints[8]", "Params.sketch8_width")
sketch8.setExpression("Constraints[9]", "Params.sketch8_height")
pad8 = body.newObject("PartDesign::Pad", "Pad007")
pad8.Profile = sketch8
pad8.setExpression("Length", "Params.pad8_length")
doc.recompute()

fillet = body.newObject("PartDesign::Fillet", "Fillet")
fillet.Base = (pad8, edges_at(pad8, [(400, 73.5, 140), (-400, 73.5, 140)]))
fillet.setExpression("Radius", "Params.fillet_radius")

doc.recompute()
